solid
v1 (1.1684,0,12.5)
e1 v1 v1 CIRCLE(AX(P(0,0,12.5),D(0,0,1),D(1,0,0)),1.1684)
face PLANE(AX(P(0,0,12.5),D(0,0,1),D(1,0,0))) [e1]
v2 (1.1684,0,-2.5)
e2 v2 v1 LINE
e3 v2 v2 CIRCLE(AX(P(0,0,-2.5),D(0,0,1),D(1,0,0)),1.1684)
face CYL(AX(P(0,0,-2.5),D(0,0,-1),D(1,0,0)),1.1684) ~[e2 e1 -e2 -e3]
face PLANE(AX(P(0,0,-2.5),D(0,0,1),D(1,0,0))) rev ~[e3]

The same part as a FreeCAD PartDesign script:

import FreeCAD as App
import Part
import Sketcher
from FreeCAD import Vector
Q = App.Units.Quantity

doc = App.newDocument("Part")
body = doc.addObject("PartDesign::Body", "Body")

sketch1 = body.newObject("Sketcher::SketchObject", "Sketch")
sketch1.AttachmentSupport = (doc.getObject("XY_Plane"), [""])
sketch1.MapMode = "FlatFace"
sketch1.AttachmentOffset = App.Placement(Vector(0, 0, -2.5), App.Rotation())
sketch1.addGeometry(Part.Circle(Vector(0, 0, 0), Vector(0, 0, 1), 1.2), False)
sketch1.addConstraint(Sketcher.Constraint("Coincident", 0, 3, -1, 1))
sketch1.addConstraint(Sketcher.Constraint("Diameter", 0, Q("2.3368 mm")))
pad1 = body.newObject("PartDesign::Pad", "Pad")
pad1.Profile = sketch1
pad1.Length = 15

doc.recompute()
